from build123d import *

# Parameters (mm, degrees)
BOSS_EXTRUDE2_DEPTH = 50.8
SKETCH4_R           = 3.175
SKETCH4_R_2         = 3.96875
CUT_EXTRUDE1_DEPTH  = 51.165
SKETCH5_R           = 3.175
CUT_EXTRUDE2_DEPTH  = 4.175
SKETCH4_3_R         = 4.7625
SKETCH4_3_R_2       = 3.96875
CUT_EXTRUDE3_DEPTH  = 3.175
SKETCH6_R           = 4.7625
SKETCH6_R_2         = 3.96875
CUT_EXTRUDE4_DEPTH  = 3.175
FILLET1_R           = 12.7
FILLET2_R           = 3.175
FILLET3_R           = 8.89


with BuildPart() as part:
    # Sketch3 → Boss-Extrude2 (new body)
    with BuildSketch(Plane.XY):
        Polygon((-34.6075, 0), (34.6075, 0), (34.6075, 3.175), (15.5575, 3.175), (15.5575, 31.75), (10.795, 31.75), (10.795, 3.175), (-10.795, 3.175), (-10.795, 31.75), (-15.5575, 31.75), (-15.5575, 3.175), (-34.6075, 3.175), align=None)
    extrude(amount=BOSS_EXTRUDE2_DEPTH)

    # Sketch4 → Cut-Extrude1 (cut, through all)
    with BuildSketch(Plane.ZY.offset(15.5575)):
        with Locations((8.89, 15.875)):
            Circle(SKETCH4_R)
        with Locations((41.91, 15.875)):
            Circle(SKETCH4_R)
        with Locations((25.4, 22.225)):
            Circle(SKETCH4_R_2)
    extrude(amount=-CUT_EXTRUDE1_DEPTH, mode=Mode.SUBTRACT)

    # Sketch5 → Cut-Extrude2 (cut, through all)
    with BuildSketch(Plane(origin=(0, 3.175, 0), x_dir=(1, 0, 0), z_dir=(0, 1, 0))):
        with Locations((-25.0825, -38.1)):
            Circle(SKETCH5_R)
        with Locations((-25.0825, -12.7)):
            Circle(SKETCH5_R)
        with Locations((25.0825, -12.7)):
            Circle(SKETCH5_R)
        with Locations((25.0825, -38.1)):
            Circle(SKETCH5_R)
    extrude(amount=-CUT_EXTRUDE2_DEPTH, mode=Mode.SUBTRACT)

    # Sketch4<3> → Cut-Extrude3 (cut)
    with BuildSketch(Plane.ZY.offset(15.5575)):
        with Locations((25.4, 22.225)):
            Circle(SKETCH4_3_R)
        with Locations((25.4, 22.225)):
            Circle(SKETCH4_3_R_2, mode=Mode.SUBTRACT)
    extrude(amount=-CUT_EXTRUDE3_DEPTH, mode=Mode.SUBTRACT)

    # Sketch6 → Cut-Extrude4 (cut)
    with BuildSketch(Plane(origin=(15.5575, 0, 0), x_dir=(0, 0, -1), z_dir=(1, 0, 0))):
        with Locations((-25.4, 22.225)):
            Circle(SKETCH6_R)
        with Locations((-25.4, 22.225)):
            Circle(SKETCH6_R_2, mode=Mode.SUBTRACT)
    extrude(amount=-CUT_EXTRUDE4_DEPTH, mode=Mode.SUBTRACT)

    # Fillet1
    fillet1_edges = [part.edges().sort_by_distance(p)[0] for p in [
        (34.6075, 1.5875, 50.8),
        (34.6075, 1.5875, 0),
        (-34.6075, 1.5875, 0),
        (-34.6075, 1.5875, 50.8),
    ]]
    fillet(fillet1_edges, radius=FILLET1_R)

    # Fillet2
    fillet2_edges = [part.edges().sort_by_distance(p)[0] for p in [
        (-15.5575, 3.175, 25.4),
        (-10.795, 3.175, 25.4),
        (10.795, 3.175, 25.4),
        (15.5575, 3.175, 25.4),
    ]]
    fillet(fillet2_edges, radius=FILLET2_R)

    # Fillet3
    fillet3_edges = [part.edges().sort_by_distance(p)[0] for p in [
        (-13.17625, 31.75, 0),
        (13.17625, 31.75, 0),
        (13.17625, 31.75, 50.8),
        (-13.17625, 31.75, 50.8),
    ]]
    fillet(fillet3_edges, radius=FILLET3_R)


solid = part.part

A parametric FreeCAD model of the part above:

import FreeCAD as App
import Part
import Sketcher
from FreeCAD import Vector
Q = App.Units.Quantity


def edges_at(feature, points):
    """Names of the edges that pass closest to the given points."""
    edges = feature.Shape.Edges
    near = lambda p: min(range(len(edges)), key=lambda i: edges[i].distToShape(Part.Vertex(*p))[0])
    return sorted({f"Edge{near(p) + 1}" for p in points})


def add_polygon(sketch, points):
    """Adds a closed chain of lines whose ends are joined by coincident constraints."""
    first, n = sketch.GeometryCount, len(points)
    for a, b in zip(points, points[1:] + points[:1]):
        sketch.addGeometry(Part.LineSegment(App.Vector(*a, 0), App.Vector(*b, 0)), False)
    for i in range(n):
        sketch.addConstraint(Sketcher.Constraint("Coincident", first + i, 2, first + (i + 1) % n, 1))

doc = App.newDocument("Part")
body = doc.addObject("PartDesign::Body", "Body")

# Sketch on XY plane
sketch1 = body.newObject("Sketcher::SketchObject", "Sketch")
sketch1.AttachmentSupport = (doc.getObject("XY_Plane"), [""])
sketch1.MapMode = "FlatFace"
add_polygon(sketch1, [(-34.6, 0), (34.6, 0), (34.6, 3.2), (15.6, 3.2), (15.6, 31.8), (10.8, 31.8), (10.8, 3.2), (-10.8, 3.2), (-10.8, 31.8), (-15.6, 31.8), (-15.6, 3.2), (-34.6, 3.2)])  # lines 0-11
sketch1.addConstraint([
    Sketcher.Constraint("Horizontal", 0),
    Sketcher.Constraint("Vertical", 1),
    Sketcher.Constraint("Horizontal", 2),
    Sketcher.Constraint("Vertical", 3),
    Sketcher.Constraint("Horizontal", 4),
    Sketcher.Constraint("Vertical", 5),
    Sketcher.Constraint("Horizontal", 6),
    Sketcher.Constraint("Vertical", 7),
    Sketcher.Constraint("Horizontal", 8),
    Sketcher.Constraint("Vertical", 9),
    Sketcher.Constraint("Horizontal", 10),
    Sketcher.Constraint("Vertical", 11),
    Sketcher.Constraint("Symmetric", 0, 2, 11, 2, -1, 1),
    Sketcher.Constraint("Symmetric", 4, 2, 7, 2, -2),
    Sketcher.Constraint("Symmetric", 2, 2, 9, 2, -2),
    Sketcher.Constraint("Horizontal", 2, 2, 5, 2),
    Sketcher.Constraint("DistanceX", 2, 2, 2, 1, Q("0.75 in")),
    Sketcher.Constraint("DistanceX", 6, 2, 6, 1, Q("0.85 in")),
    Sketcher.Constraint("DistanceX", 0, 1, 0, 2, Q("2.725 in")),
    Sketcher.Constraint("DistanceY", 1, 1, 1, 2, Q("0.125 in")),
    Sketcher.Constraint("DistanceY", 3, 1, 3, 2, Q("1.125 in")),
])
pad1 = body.newObject("PartDesign::Pad", "Pad")
pad1.Profile = sketch1
pad1.Length = Q("2 in")

# Sketch on YZ plane
sketch2 = body.newObject("Sketcher::SketchObject", "Sketch001")
sketch2.AttachmentSupport = (doc.getObject("YZ_Plane"), [""])
sketch2.MapMode = "FlatFace"
sketch2.AttachmentOffset = App.Placement(Vector(0, 0, -0.6125 * 25.4), App.Rotation())
sketch2.addGeometry([
    Part.Circle(Vector(15.9, 8.9, 0), Vector(0, 0, 1), 3.2),
    Part.Circle(Vector(15.9, 41.9, 0), Vector(0, 0, 1), 3.2),
    Part.Circle(Vector(22.2, 25.4, 0), Vector(0, 0, 1), 4),
], False)
sketch2.addConstraint([
    Sketcher.Constraint("Equal", 0, 1),
    Sketcher.Constraint("Vertical", 0, 3, 1, 3),
    Sketcher.Constraint("Diameter", 0, Q("0.25 in")),
    Sketcher.Constraint("Diameter", 2, Q("0.3125 in")),
    Sketcher.Constraint("DistanceY", -1, 1, 2, 3, Q("1 in")),
    Sketcher.Constraint("DistanceY", 0, 3, 1, 3, Q("1.3 in")),
    Sketcher.Constraint("DistanceY", -1, 1, 0, 3, Q("0.35 in")),
    Sketcher.Constraint("DistanceX", 0, 3, 2, 3, Q("0.25 in")),
    Sketcher.Constraint("DistanceX", -1, 1, 0, 3, Q("0.625 in")),
])
pocket1 = body.newObject("PartDesign::Pocket", "Pocket")
pocket1.Profile = sketch2
pocket1.Type = "ThroughAll"
pocket1.Reversed = True

# Sketch on XZ plane
sketch3 = body.newObject("Sketcher::SketchObject", "Sketch002")
sketch3.AttachmentSupport = (doc.getObject("XZ_Plane"), [""])
sketch3.MapMode = "FlatFace"
sketch3.AttachmentOffset = App.Placement(Vector(0, 0, -0.125 * 25.4), App.Rotation())
sketch3.addGeometry([
    Part.Circle(Vector(-25.1, 38.1, 0), Vector(0, 0, 1), 3.2),
    Part.Circle(Vector(-25.1, 12.7, 0), Vector(0, 0, 1), 3.2),
    Part.Circle(Vector(25.1, 12.7, 0), Vector(0, 0, 1), 3.2),
    Part.Circle(Vector(25.1, 38.1, 0), Vector(0, 0, 1), 3.2),
], False)
sketch3.addConstraint([
    Sketcher.Constraint("Equal", 0, 1),
    Sketcher.Constraint("Equal", 1, 2),
    Sketcher.Constraint("Equal", 2, 3),
    Sketcher.Constraint("Symmetric", 1, 3, 2, 3, -2),
    Sketcher.Constraint("Symmetric", 0, 3, 3, 3, -2),
    Sketcher.Constraint("Vertical", 0, 3, 1, 3),
    Sketcher.Constraint("Diameter", 0, Q("0.25 in")),
    Sketcher.Constraint("DistanceY", 1, 3, 0, 3, Q("1 in")),
    Sketcher.Constraint("DistanceY", -1, 1, 0, 3, Q("1.5 in")),
    Sketcher.Constraint("DistanceX", 1, 3, 2, 3, Q("1.975 in")),
])
pocket2 = body.newObject("PartDesign::Pocket", "Pocket001")
pocket2.Profile = sketch3
pocket2.Type = "ThroughAll"
pocket2.Reversed = True

# Sketch on YZ plane
sketch4 = body.newObject("Sketcher::SketchObject", "Sketch003")
sketch4.AttachmentSupport = (doc.getObject("YZ_Plane"), [""])
sketch4.MapMode = "FlatFace"
sketch4.AttachmentOffset = App.Placement(Vector(0, 0, -0.6125 * 25.4), App.Rotation())
sketch4.addGeometry([
    Part.Circle(Vector(22.2, 25.4, 0), Vector(0, 0, 1), 4.8),
    Part.Circle(Vector(22.2, 25.4, 0), Vector(0, 0, 1), 4),
], False)
sketch4.addConstraint([
    Sketcher.Constraint("Coincident", 1, 3, 0, 3),
    Sketcher.Constraint("Diameter", 0, Q("0.375 in")),
    Sketcher.Constraint("Diameter", 1, Q("0.3125 in")),
    Sketcher.Constraint("DistanceY", -1, 1, 0, 3, Q("1 in")),
    Sketcher.Constraint("DistanceX", -1, 1, 0, 3, Q("0.875 in")),
])
pocket3 = body.newObject("PartDesign::Pocket", "Pocket002")
pocket3.Profile = sketch4
pocket3.Length = Q("0.125 in")
pocket3.Reversed = True

# Sketch on YZ plane
sketch5 = body.newObject("Sketcher::SketchObject", "Sketch004")
sketch5.AttachmentSupport = (doc.getObject("YZ_Plane"), [""])
sketch5.MapMode = "FlatFace"
sketch5.AttachmentOffset = App.Placement(Vector(0, 0, 0.6125 * 25.4), App.Rotation())
sketch5.addGeometry([
    Part.Circle(Vector(22.2, 25.4, 0), Vector(0, 0, 1), 4.8),
    Part.Circle(Vector(22.2, 25.4, 0), Vector(0, 0, 1), 4),
], False)
sketch5.addConstraint([
    Sketcher.Constraint("Coincident", 1, 3, 0, 3),
    Sketcher.Constraint("Diameter", 0, Q("0.375 in")),
    Sketcher.Constraint("Diameter", 1, Q("0.3125 in")),
    Sketcher.Constraint("DistanceY", -1, 1, 0, 3, Q("1 in")),
    Sketcher.Constraint("DistanceX", -1, 1, 0, 3, Q("0.875 in")),
])
pocket4 = body.newObject("PartDesign::Pocket", "Pocket003")
pocket4.Profile = sketch5
pocket4.Length = Q("0.125 in")
doc.recompute()

fillet = body.newObject("PartDesign::Fillet", "Fillet")
fillet.Base = (pocket4, edges_at(pocket4, [
    (34.608, 1.587, 50.8),
    (34.608, 1.587, 0),
    (-34.608, 1.587, 0),
    (-34.608, 1.587, 50.8),
]))
fillet.Radius = Q("0.5 in")
doc.recompute()

fillet2 = body.newObject("PartDesign::Fillet", "Fillet001")
fillet2.Base = (fillet, edges_at(fillet, [
    (-15.557, 3.175, 25.4),
    (-10.795, 3.175, 25.4),
    (10.795, 3.175, 25.4),
    (15.557, 3.175, 25.4),
]))
fillet2.Radius = Q("0.125 in")
doc.recompute()

fillet3 = body.newObject("PartDesign::Fillet", "Fillet002")
fillet3.Base = (fillet2, edges_at(fillet2, [
    (-13.176, 31.75, 0),
    (13.176, 31.75, 0),
    (13.176, 31.75, 50.8),
    (-13.176, 31.75, 50.8),
]))
fillet3.Radius = Q("0.35 in")

doc.recompute()
